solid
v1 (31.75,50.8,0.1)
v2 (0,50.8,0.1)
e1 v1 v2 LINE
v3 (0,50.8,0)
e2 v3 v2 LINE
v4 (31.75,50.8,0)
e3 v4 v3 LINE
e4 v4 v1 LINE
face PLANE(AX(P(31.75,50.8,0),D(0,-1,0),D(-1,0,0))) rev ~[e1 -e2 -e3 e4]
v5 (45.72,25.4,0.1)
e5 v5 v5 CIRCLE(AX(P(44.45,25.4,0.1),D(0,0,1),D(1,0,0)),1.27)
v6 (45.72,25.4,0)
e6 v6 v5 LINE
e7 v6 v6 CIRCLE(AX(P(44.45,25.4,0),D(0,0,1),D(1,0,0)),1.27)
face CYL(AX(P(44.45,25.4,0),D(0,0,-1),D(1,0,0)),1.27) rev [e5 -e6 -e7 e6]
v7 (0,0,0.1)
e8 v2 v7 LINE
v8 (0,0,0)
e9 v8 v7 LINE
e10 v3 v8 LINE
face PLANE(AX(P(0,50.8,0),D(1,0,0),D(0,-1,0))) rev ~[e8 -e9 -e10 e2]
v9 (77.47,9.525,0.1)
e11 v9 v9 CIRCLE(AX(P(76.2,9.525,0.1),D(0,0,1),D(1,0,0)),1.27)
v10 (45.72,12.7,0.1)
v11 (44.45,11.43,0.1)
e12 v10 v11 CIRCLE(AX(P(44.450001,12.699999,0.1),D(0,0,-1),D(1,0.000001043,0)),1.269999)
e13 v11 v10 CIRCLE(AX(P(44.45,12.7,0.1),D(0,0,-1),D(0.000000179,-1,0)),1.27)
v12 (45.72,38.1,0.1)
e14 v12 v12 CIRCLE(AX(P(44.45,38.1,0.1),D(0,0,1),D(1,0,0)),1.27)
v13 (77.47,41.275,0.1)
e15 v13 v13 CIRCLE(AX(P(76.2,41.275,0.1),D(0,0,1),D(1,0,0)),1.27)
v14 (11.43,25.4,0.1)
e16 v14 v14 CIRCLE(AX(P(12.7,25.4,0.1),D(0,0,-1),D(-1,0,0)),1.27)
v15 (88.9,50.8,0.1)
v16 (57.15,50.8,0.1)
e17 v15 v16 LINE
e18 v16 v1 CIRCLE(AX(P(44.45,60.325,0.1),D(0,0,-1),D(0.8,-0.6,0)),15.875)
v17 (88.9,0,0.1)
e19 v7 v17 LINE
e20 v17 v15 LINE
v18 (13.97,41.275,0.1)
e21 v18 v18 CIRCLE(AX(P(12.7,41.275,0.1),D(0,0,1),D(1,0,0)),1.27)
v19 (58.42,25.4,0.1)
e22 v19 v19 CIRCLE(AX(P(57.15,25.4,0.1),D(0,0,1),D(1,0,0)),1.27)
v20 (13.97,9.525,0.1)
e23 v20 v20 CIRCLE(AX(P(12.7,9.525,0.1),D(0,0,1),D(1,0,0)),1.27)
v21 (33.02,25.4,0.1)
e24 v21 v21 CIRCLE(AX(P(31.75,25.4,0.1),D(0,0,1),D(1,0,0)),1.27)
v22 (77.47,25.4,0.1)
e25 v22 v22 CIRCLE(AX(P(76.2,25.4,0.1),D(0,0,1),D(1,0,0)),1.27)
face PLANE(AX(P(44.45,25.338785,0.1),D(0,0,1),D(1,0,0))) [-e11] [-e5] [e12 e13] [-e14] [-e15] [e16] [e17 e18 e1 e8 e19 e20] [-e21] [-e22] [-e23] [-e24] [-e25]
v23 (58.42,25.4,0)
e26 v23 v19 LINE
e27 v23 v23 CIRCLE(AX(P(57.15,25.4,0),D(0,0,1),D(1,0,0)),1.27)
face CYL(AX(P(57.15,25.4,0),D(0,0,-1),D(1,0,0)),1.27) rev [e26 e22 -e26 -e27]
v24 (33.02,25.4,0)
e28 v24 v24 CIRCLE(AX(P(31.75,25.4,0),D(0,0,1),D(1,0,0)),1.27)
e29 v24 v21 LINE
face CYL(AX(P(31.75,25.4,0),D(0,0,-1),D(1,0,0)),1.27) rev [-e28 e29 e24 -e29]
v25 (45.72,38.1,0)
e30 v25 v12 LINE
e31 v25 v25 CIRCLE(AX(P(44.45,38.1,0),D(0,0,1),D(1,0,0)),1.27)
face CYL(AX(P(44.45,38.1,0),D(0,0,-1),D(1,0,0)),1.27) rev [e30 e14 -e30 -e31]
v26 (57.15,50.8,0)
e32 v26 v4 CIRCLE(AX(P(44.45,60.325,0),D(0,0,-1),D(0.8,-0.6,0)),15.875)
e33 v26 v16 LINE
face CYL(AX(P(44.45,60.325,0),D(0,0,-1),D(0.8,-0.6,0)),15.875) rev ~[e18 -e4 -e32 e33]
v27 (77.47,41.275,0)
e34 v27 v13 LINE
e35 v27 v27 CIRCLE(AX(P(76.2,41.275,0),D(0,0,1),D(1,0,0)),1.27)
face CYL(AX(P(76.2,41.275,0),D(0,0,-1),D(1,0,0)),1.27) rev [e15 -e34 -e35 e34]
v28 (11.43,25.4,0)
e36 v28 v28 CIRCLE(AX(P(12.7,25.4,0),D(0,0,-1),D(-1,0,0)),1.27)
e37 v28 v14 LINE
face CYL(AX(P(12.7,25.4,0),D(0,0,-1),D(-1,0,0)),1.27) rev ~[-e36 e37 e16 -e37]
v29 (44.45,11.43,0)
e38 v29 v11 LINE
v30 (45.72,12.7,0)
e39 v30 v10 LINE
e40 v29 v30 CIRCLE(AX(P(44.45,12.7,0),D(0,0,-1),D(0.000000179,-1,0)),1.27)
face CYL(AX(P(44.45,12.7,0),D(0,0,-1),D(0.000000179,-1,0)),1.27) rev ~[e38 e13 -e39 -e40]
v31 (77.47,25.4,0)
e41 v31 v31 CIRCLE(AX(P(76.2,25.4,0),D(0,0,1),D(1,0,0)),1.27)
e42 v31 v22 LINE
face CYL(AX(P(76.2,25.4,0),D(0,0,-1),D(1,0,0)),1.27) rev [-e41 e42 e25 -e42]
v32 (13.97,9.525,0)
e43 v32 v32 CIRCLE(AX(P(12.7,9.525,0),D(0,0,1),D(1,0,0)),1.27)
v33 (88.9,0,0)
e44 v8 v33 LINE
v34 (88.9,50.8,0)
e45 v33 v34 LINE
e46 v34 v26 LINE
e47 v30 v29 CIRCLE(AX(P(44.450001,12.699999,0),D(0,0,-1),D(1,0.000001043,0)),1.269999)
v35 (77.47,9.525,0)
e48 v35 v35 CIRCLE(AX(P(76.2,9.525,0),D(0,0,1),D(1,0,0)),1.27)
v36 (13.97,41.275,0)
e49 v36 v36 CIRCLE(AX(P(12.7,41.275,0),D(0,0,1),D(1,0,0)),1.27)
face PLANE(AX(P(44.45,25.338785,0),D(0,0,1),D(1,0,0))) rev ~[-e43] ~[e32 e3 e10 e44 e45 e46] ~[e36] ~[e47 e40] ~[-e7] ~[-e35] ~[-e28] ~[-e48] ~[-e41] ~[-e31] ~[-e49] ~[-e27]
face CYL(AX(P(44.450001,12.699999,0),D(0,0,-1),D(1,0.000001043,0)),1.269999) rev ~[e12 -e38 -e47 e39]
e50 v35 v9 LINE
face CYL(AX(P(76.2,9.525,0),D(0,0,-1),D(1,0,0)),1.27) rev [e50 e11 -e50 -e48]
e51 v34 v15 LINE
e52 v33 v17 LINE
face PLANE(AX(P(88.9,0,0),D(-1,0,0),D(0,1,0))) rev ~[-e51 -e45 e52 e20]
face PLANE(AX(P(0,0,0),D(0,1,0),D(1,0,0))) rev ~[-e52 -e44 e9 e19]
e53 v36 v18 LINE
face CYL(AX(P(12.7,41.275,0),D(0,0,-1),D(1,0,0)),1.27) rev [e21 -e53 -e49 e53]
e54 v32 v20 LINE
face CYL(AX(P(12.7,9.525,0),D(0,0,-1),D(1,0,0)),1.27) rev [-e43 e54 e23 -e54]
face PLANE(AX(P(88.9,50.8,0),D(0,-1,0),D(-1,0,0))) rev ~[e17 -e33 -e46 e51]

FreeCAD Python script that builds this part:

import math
import FreeCAD as App
import Part
import Sketcher
Q = App.Units.Quantity

doc = App.newDocument("Part")
body = doc.addObject("PartDesign::Body", "Body")

sketch1 = body.newObject("Sketcher::SketchObject", "Sketch")
sketch1.AttachmentSupport = (doc.getObject("XY_Plane"), [""])
sketch1.MapMode = "FlatFace"
sketch1.addGeometry([
    Part.LineSegment(App.Vector(0, 0, 0), App.Vector(88.9, 0, 0)),
    Part.LineSegment(App.Vector(88.9, 0, 0), App.Vector(88.9, 50.8, 0)),
    Part.LineSegment(App.Vector(88.9, 50.8, 0), App.Vector(57.1, 50.8, 0)),
    Part.ArcOfCircle(Part.Circle(App.Vector(44.5, 60.3, 0), App.Vector(0, 0, 1), 15.9), math.radians(-143), math.radians(-37)),
    Part.LineSegment(App.Vector(31.8, 50.8, 0), App.Vector(0, 50.8, 0)),
    Part.LineSegment(App.Vector(0, 50.8, 0), App.Vector(0, 0, 0)),
    Part.Circle(App.Vector(12.7, 9.5, 0), App.Vector(0, 0, 1), 1.3),
    Part.ArcOfCircle(Part.Circle(App.Vector(44.4, 12.7, 0), App.Vector(0, 0, 1), 1.3), math.radians(0), math.radians(270)),
    Part.ArcOfCircle(Part.Circle(App.Vector(44.5, 12.7, 0), App.Vector(0, 0, 1), 1.3), math.radians(-90), math.radians(0)),
    Part.Circle(App.Vector(76.2, 9.5, 0), App.Vector(0, 0, 1), 1.3),
    Part.Circle(App.Vector(12.7, 25.4, 0), App.Vector(0, 0, 1), 1.3),
    Part.Circle(App.Vector(31.8, 25.4, 0), App.Vector(0, 0, 1), 1.3),
    Part.Circle(App.Vector(12.7, 41.3, 0), App.Vector(0, 0, 1), 1.3),
    Part.Circle(App.Vector(44.5, 25.4, 0), App.Vector(0, 0, 1), 1.3),
    Part.Circle(App.Vector(57.1, 25.4, 0), App.Vector(0, 0, 1), 1.3),
    Part.Circle(App.Vector(76.2, 25.4, 0), App.Vector(0, 0, 1), 1.3),
    Part.Circle(App.Vector(44.5, 38.1, 0), App.Vector(0, 0, 1), 1.3),
    Part.Circle(App.Vector(76.2, 41.3, 0), App.Vector(0, 0, 1), 1.3),
], False)
sketch1.addConstraint([
    Sketcher.Constraint("Coincident", 0, 2, 1, 1),
    Sketcher.Constraint("Coincident", 1, 2, 2, 1),
    Sketcher.Constraint("Coincident", 2, 2, 3, 2),
    Sketcher.Constraint("Coincident", 3, 1, 4, 1),
    Sketcher.Constraint("Coincident", 4, 2, 5, 1),
    Sketcher.Constraint("Coincident", 5, 2, 0, 1),
    Sketcher.Constraint("Tangent", 7, 1, 8, 2),
    Sketcher.Constraint("Coincident", 8, 1, 7, 2),
    Sketcher.Constraint("Horizontal", 0),
    Sketcher.Constraint("Vertical", 1),
    Sketcher.Constraint("Horizontal", 2),
    Sketcher.Constraint("Horizontal", 4),
    Sketcher.Constraint("Vertical", 5),
    Sketcher.Constraint("Coincident", 5, 2, -1, 1),
    Sketcher.Constraint("Equal", 6, 7),
    Sketcher.Constraint("Equal", 8, 9),
    Sketcher.Constraint("Equal", 9, 10),
    Sketcher.Constraint("Equal", 10, 11),
    Sketcher.Constraint("Equal", 11, 12),
    Sketcher.Constraint("Equal", 12, 13),
    Sketcher.Constraint("Equal", 13, 14),
    Sketcher.Constraint("Equal", 14, 15),
    Sketcher.Constraint("Equal", 15, 16),
    Sketcher.Constraint("Equal", 16, 17),
    Sketcher.Constraint("Horizontal", 6, 3, 9, 3),
    Sketcher.Constraint("Horizontal", 10, 3, 11, 3),
    Sketcher.Constraint("Horizontal", 11, 3, 13, 3),
    Sketcher.Constraint("Horizontal", 13, 3, 14, 3),
    Sketcher.Constraint("Horizontal", 14, 3, 15, 3),
    Sketcher.Constraint("Horizontal", 12, 3, 17, 3),
    Sketcher.Constraint("Horizontal", 2, 2, 3, 1),
    Sketcher.Constraint("Horizontal", 8, 3, 7, 1),
    Sketcher.Constraint("Vertical", 3, 3, 7, 3),
    Sketcher.Constraint("Vertical", 6, 3, 10, 3),
    Sketcher.Constraint("Vertical", 10, 3, 12, 3),
    Sketcher.Constraint("Vertical", 8, 3, 13, 3),
    Sketcher.Constraint("Vertical", 9, 3, 15, 3),
    Sketcher.Constraint("Vertical", 13, 3, 16, 3),
    Sketcher.Constraint("Vertical", 15, 3, 17, 3),
    Sketcher.Constraint("Vertical", 14, 3, 2, 2),
    Sketcher.Constraint("Vertical", 11, 3, 3, 1),
    Sketcher.Constraint("Vertical", 16, 3, 8, 1),
    Sketcher.Constraint("Equal", 2, 4),
    Sketcher.Constraint("Diameter", 6, Q("0.1 in")),
    Sketcher.Constraint("DistanceY", 1, 1, 1, 2, Q("2 in")),
    Sketcher.Constraint("DistanceX", 0, 1, 0, 2, Q("3.5 in")),
    Sketcher.Constraint("DistanceX", -1, 1, 9, 3, Q("3 in")),
    Sketcher.Constraint("DistanceY", -1, 1, 10, 3, Q("1 in")),
    Sketcher.Constraint("Radius", 3, Q("0.625 in")),
    Sketcher.Constraint("DistanceY", 6, 3, 3, 3, Q("2 in")),
    Sketcher.Constraint("DistanceX", 11, 3, 14, 3, Q("1 in")),
    Sketcher.Constraint("DistanceY", 7, 3, 16, 3, Q("1 in")),
    Sketcher.Constraint("DistanceX", -1, 1, 6, 3, Q("0.5 in")),
    Sketcher.Constraint("DistanceY", -1, 1, 7, 3, Q("0.5 in")),
    Sketcher.Constraint("DistanceY", 6, 3, 12, 3, Q("1.25 in")),
])
pad1 = body.newObject("PartDesign::Pad", "Pad")
pad1.Profile = sketch1
pad1.Length = 0.1

doc.recompute()
